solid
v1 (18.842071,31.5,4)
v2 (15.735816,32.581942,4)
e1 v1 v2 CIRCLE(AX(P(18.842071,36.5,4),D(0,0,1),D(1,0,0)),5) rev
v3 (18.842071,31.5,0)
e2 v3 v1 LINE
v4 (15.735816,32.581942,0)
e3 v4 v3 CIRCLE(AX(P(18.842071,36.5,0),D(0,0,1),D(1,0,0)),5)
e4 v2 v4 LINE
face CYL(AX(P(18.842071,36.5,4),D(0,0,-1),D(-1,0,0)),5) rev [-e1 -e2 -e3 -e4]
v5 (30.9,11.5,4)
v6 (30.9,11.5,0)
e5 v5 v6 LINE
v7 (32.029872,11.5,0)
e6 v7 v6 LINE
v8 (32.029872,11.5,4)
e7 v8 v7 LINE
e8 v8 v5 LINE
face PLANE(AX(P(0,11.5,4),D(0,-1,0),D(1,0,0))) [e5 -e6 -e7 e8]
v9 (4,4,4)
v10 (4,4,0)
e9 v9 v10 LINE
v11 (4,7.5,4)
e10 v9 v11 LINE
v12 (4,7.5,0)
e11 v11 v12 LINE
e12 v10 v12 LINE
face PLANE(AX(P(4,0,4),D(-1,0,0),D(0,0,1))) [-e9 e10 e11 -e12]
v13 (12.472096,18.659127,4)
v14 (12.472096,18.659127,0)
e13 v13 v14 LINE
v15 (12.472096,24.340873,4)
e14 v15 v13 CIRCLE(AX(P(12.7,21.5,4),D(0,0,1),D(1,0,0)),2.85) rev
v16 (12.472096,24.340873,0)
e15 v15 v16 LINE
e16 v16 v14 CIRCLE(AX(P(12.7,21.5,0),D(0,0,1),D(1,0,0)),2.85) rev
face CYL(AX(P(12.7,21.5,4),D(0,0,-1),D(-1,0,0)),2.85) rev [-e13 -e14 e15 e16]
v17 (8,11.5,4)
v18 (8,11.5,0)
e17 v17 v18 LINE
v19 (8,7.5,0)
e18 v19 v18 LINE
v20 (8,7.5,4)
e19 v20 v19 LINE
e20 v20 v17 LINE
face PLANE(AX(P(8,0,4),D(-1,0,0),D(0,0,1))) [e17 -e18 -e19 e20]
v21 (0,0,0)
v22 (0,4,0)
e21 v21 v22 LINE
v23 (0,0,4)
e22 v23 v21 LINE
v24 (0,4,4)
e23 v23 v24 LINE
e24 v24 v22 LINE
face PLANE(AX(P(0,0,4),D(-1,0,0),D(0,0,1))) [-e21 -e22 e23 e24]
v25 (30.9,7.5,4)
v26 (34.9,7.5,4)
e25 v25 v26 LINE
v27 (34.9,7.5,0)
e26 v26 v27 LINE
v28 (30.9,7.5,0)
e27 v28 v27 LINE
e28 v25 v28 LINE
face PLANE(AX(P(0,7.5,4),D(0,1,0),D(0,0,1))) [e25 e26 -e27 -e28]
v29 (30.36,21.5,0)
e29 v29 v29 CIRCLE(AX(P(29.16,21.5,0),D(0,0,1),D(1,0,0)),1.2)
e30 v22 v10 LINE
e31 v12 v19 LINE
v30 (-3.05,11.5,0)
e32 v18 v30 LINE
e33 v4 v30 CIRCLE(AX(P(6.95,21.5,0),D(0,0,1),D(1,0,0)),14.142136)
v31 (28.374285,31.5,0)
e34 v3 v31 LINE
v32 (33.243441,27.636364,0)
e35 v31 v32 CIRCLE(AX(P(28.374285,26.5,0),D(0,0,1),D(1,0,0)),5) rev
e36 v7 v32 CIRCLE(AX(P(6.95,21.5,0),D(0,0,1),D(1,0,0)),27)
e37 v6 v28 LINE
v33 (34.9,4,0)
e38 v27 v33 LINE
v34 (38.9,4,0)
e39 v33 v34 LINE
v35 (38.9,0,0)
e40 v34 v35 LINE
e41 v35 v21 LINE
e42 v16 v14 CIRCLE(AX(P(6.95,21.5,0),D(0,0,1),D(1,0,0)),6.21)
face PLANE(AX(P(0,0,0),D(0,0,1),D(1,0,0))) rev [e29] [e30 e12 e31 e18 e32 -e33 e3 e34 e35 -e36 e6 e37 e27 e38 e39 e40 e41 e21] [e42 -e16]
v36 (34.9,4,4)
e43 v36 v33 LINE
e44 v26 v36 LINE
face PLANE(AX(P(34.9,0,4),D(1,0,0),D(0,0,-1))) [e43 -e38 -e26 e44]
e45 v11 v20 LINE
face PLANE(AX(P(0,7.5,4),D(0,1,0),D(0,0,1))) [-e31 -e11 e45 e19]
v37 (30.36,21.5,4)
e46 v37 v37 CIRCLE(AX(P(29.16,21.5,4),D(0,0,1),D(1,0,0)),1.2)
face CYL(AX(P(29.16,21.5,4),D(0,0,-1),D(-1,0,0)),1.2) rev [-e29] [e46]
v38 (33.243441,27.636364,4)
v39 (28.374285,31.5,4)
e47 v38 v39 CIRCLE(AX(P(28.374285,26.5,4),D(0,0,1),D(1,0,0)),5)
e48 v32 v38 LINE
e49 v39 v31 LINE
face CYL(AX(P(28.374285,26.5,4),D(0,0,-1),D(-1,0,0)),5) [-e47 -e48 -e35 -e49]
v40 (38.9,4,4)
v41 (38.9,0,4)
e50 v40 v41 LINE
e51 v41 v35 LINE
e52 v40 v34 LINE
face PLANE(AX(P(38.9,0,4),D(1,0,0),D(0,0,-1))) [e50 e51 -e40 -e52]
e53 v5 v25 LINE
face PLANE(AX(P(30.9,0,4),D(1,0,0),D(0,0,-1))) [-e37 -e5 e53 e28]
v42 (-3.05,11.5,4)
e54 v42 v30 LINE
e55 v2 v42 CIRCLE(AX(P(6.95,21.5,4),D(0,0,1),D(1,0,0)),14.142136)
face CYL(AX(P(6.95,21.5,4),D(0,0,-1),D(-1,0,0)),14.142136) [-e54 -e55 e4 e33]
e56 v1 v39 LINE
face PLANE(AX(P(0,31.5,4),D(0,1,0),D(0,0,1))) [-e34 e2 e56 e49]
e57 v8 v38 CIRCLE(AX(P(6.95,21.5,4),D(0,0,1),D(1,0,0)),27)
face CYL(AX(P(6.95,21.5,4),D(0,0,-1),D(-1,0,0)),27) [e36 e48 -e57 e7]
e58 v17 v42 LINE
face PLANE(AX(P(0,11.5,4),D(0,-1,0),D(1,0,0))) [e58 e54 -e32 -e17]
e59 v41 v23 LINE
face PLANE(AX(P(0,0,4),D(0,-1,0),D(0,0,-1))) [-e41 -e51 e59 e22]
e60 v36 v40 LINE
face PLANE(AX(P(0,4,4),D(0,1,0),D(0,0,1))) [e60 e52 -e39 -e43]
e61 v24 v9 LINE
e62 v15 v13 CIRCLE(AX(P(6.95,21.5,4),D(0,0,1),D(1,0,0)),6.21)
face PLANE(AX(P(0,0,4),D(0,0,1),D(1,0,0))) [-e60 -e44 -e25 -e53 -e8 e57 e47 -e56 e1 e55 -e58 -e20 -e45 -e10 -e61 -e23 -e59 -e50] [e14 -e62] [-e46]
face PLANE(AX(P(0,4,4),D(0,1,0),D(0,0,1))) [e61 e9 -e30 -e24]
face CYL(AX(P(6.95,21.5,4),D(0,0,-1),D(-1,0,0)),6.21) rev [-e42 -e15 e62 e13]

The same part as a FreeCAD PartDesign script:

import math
import FreeCAD as App
import Part
import Sketcher


def edges_at(feature, points):
    """Names of the edges that pass closest to the given points."""
    edges = feature.Shape.Edges
    near = lambda p: min(range(len(edges)), key=lambda i: edges[i].distToShape(Part.Vertex(*p))[0])
    return sorted({f"Edge{near(p) + 1}" for p in points})

doc = App.newDocument("Part")
params = doc.addObject("Spreadsheet::Sheet", "Params")
for row, (alias, value) in enumerate([
    ("sketch1_radius", "27 mm"),
    ("sketch1_diameter", "2.4 mm"),
    ("sketch1_width", "4 mm"),
    ("sketch1_radius2", "6.21 mm"),
    ("sketch1_radius3", "2.85 mm"),
    ("pad1_length", "4 mm"),
    ("fillet_radius", "5 mm"),
], start=1):
    params.set(f"A{row}", alias)
    params.set(f"B{row}", "=" + value)
    params.setAlias(f"B{row}", alias)

body = doc.addObject("PartDesign::Body", "Body")

# Sketch on XY plane
sketch1 = body.newObject("Sketcher::SketchObject", "Sketch")
sketch1.AttachmentSupport = (doc.getObject("XY_Plane"), [""])
sketch1.MapMode = "FlatFace"
sketch1.addGeometry([
    Part.LineSegment(App.Vector(0, 4, 0), App.Vector(0, 0, 0)),  # 0
    Part.LineSegment(App.Vector(0, 0, 0), App.Vector(38.9, 0, 0)),  # 1
    Part.LineSegment(App.Vector(38.9, 0, 0), App.Vector(38.9, 4, 0)),  # 2
    Part.LineSegment(App.Vector(38.9, 4, 0), App.Vector(34.9, 4, 0)),  # 3
    Part.LineSegment(App.Vector(34.9, 4, 0), App.Vector(34.9, 7.5, 0)),  # 4
    Part.LineSegment(App.Vector(34.9, 7.5, 0), App.Vector(30.9, 7.5, 0)),  # 5
    Part.LineSegment(App.Vector(30.9, 7.5, 0), App.Vector(30.9, 11.5, 0)),  # 6
    Part.LineSegment(App.Vector(30.9, 11.5, 0), App.Vector(32.029872, 11.5, 0)),  # 7
    Part.ArcOfCircle(Part.Circle(App.Vector(6.95, 21.5, 0), App.Vector(0, 0, 1), 27), math.radians(-21.738461), math.radians(21.738461)),  # 8
    Part.LineSegment(App.Vector(32.029872, 31.5, 0), App.Vector(16.95, 31.5, 0)),  # 9
    Part.ArcOfCircle(Part.Circle(App.Vector(6.95, 21.5, 0), App.Vector(0, 0, 1), 14.142136), math.radians(45), math.radians(225)),  # 10
    Part.LineSegment(App.Vector(-3.05, 11.5, 0), App.Vector(8, 11.5, 0)),  # 11
    Part.LineSegment(App.Vector(8, 11.5, 0), App.Vector(8, 7.5, 0)),  # 12
    Part.LineSegment(App.Vector(8, 7.5, 0), App.Vector(4, 7.5, 0)),  # 13
    Part.LineSegment(App.Vector(4, 7.5, 0), App.Vector(4, 4, 0)),  # 14
    Part.LineSegment(App.Vector(4, 4, 0), App.Vector(0, 4, 0)),  # 15
    Part.ArcOfCircle(Part.Circle(App.Vector(6.95, 21.5, 0), App.Vector(0, 0, 1), 6.21), math.radians(27.223809), math.radians(332.776191)),  # 16
    Part.ArcOfCircle(Part.Circle(App.Vector(12.7, 21.5, 0), App.Vector(0, 0, 1), 2.85), math.radians(-94.586637), math.radians(94.586637)),  # 17
    Part.Circle(App.Vector(29.16, 21.5, 0), App.Vector(0, 0, 1), 1.2),  # 18
], False)
sketch1.addConstraint([
    Sketcher.Constraint("Coincident", 0, 2, 1, 1),
    Sketcher.Constraint("Coincident", 1, 2, 2, 1),
    Sketcher.Constraint("Coincident", 2, 2, 3, 1),
    Sketcher.Constraint("Coincident", 3, 2, 4, 1),
    Sketcher.Constraint("Coincident", 4, 2, 5, 1),
    Sketcher.Constraint("Coincident", 5, 2, 6, 1),
    Sketcher.Constraint("Coincident", 6, 2, 7, 1),
    Sketcher.Constraint("Coincident", 7, 2, 8, 1),
    Sketcher.Constraint("Coincident", 8, 2, 9, 1),
    Sketcher.Constraint("Coincident", 9, 2, 10, 1),
    Sketcher.Constraint("Coincident", 10, 2, 11, 1),
    Sketcher.Constraint("Coincident", 11, 2, 12, 1),
    Sketcher.Constraint("Coincident", 12, 2, 13, 1),
    Sketcher.Constraint("Coincident", 13, 2, 14, 1),
    Sketcher.Constraint("Coincident", 14, 2, 15, 1),
    Sketcher.Constraint("Coincident", 15, 2, 0, 1),
    Sketcher.Constraint("Coincident", 16, 1, 17, 2),
    Sketcher.Constraint("Coincident", 17, 1, 16, 2),
    Sketcher.Constraint("Vertical", 0),
    Sketcher.Constraint("Horizontal", 1),
    Sketcher.Constraint("Vertical", 2),
    Sketcher.Constraint("Horizontal", 3),
    Sketcher.Constraint("Vertical", 4),
    Sketcher.Constraint("Horizontal", 5),
    Sketcher.Constraint("Vertical", 6),
    Sketcher.Constraint("Horizontal", 7),
    Sketcher.Constraint("Horizontal", 9),
    Sketcher.Constraint("Horizontal", 11),
    Sketcher.Constraint("Vertical", 12),
    Sketcher.Constraint("Horizontal", 13),
    Sketcher.Constraint("Vertical", 14),
    Sketcher.Constraint("Horizontal", 15),
    Sketcher.Constraint("Coincident", 0, 2, -1, 1),
    Sketcher.Constraint("Coincident", 10, 3, 8, 3),
    Sketcher.Constraint("Coincident", 16, 3, 8, 3),
    Sketcher.Constraint("Horizontal", 16, 3, 17, 3),
    Sketcher.Constraint("Horizontal", 17, 3, 18, 3),
    Sketcher.Constraint("Horizontal", 7, 2, 10, 2),
    Sketcher.Constraint("Horizontal", 5, 2, 12, 2),
    Sketcher.Constraint("Horizontal", 3, 2, 14, 2),
    Sketcher.Constraint("Vertical", 7, 2, 8, 2),
    Sketcher.Constraint("Equal", 3, 5),
    Sketcher.Constraint("Equal", 5, 13),
    Sketcher.Constraint("Equal", 13, 15),
    Sketcher.Constraint("Equal", 15, 0),
    Sketcher.Constraint("Equal", 2, 6),
    Sketcher.Constraint("Radius", 8, 27.0),
    Sketcher.Constraint("Diameter", 18, 2.4),
    Sketcher.Constraint("DistanceX", 3, 2, 3, 1, 4.0),
    Sketcher.Constraint("Radius", 16, 6.21),
    Sketcher.Constraint("Radius", 17, 2.85),
    Sketcher.Constraint("DistanceX", 1, 1, 1, 2, 38.9),
    Sketcher.Constraint("DistanceY", 4, 1, 4, 2, 3.5),
    Sketcher.Constraint("DistanceY", 4, 2, 18, 3, 14.0),
    Sketcher.Constraint("DistanceX", 8, 3, 9, 2, 10.0),
    Sketcher.Constraint("DistanceX", 11, 1, 11, 2, 11.05),
    Sketcher.Constraint("DistanceX", -1, 1, 17, 3, 12.7),
    Sketcher.Constraint("DistanceX", -1, 1, 18, 3, 29.16),
])
sketch1.setExpression("Constraints[46]", "Params.sketch1_radius")
sketch1.setExpression("Constraints[47]", "Params.sketch1_diameter")
sketch1.setExpression("Constraints[48]", "Params.sketch1_width")
sketch1.setExpression("Constraints[49]", "Params.sketch1_radius2")
sketch1.setExpression("Constraints[50]", "Params.sketch1_radius3")
pad1 = body.newObject("PartDesign::Pad", "Pad")
pad1.Profile = sketch1
pad1.setExpression("Length", "Params.pad1_length")
doc.recompute()

fillet = body.newObject("PartDesign::Fillet", "Fillet")
fillet.Base = (pad1, edges_at(pad1, [(16.95, 31.5, 2), (32.03, 31.5, 2)]))
fillet.setExpression("Radius", "Params.fillet_radius")

doc.recompute()
